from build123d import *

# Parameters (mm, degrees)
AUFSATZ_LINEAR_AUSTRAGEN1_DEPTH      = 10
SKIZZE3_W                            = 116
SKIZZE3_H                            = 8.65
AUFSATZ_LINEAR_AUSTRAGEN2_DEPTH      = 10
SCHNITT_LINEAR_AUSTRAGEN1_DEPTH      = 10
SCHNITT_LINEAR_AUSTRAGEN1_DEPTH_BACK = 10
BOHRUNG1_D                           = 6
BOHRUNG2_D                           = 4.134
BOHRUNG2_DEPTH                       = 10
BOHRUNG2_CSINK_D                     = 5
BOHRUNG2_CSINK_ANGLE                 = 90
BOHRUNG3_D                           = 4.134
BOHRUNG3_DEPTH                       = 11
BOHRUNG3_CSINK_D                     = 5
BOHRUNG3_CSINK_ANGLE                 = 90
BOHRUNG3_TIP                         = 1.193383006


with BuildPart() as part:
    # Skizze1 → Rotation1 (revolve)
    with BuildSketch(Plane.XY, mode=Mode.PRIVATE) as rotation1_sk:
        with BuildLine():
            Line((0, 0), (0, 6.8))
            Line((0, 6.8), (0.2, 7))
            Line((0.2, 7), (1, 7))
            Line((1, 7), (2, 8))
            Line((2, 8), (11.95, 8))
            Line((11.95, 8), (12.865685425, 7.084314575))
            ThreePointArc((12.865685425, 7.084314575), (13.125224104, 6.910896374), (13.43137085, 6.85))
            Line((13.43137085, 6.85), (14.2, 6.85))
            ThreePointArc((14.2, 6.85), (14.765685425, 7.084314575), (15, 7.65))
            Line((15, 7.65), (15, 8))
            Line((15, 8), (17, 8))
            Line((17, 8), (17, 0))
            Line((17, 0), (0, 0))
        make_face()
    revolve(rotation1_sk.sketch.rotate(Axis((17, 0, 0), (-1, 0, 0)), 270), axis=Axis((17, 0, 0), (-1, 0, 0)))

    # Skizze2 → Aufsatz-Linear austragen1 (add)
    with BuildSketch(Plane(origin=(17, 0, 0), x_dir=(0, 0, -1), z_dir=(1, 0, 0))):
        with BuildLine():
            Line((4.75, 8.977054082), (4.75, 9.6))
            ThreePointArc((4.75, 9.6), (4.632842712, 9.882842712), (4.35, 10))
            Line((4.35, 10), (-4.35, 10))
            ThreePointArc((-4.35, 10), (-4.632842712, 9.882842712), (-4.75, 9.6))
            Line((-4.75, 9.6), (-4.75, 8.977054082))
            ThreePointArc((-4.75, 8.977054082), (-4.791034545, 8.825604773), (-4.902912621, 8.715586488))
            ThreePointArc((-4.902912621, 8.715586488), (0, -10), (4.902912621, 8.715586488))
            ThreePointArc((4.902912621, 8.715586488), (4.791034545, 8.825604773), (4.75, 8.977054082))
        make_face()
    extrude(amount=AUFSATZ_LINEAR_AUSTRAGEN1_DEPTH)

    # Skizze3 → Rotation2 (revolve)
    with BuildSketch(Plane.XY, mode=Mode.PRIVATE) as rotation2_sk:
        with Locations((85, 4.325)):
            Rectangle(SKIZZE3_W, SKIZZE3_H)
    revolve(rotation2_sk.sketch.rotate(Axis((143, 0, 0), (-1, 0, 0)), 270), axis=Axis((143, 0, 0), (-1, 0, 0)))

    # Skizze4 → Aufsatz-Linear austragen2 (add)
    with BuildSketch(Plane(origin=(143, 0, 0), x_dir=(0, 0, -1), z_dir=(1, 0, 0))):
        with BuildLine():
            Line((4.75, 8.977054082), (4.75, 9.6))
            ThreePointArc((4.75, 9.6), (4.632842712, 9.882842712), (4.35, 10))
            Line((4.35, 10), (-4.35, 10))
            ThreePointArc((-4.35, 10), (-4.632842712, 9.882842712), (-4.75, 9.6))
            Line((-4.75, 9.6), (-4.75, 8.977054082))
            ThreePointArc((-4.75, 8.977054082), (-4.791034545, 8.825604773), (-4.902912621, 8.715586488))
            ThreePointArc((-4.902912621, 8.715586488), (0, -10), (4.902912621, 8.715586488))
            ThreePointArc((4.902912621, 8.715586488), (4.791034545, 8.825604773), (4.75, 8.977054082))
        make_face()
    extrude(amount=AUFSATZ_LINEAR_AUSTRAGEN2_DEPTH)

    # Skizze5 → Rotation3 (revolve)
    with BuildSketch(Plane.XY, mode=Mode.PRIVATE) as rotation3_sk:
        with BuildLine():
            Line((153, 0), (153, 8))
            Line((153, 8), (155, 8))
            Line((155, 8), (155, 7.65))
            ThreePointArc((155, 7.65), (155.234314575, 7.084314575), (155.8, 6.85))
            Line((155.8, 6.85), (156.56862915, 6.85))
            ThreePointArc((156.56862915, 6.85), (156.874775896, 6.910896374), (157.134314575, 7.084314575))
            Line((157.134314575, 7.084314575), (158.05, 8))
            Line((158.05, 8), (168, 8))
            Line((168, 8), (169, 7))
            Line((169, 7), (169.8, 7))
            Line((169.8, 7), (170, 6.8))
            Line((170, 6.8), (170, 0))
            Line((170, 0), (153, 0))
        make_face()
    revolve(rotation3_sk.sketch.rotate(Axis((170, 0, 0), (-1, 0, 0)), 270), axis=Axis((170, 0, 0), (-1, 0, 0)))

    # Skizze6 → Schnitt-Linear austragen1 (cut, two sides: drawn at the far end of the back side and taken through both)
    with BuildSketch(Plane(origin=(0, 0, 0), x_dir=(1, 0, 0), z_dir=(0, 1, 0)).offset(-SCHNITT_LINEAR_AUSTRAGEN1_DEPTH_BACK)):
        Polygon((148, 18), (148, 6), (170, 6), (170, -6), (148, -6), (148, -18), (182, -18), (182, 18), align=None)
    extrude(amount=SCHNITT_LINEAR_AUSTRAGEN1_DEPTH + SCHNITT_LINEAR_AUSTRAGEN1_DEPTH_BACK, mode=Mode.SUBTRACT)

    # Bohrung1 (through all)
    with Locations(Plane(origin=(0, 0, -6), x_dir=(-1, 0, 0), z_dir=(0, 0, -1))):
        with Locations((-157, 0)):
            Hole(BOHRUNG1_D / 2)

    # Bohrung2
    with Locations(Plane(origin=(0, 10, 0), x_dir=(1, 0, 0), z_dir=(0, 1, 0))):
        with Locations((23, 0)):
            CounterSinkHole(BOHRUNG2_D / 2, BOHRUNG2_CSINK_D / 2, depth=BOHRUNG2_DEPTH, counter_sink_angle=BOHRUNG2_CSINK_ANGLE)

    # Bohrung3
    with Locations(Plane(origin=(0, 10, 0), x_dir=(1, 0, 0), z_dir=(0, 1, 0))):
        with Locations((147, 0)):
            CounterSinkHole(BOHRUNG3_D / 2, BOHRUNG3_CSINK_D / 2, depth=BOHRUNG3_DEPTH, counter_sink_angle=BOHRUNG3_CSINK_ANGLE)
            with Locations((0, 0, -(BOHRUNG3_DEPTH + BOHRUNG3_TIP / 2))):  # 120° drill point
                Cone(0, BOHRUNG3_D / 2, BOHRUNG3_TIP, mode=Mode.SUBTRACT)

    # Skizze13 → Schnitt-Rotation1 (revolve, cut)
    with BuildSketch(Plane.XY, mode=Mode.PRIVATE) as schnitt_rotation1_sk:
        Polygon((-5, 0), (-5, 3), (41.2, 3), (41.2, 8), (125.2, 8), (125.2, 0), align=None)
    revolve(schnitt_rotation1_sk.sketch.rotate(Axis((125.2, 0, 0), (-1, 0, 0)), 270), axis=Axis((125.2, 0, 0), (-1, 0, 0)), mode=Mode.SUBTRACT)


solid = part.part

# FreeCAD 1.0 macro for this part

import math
import FreeCAD as App
import Part
import Sketcher
from FreeCAD import Vector
Q = App.Units.Quantity

doc = App.newDocument("Part")
body = doc.addObject("PartDesign::Body", "Body")

sketch1 = body.newObject("Sketcher::SketchObject", "Sketch")
sketch1.AttachmentSupport = (doc.getObject("XY_Plane"), [""])
sketch1.MapMode = "FlatFace"
sketch1.addGeometry([
    Part.LineSegment(Vector(0, 6.8, 0), Vector(0, 0, 0)),
    Part.LineSegment(Vector(0, 0, 0), Vector(17, 0, 0)),
    Part.LineSegment(Vector(17, 0, 0), Vector(17, 8, 0)),
    Part.LineSegment(Vector(17, 8, 0), Vector(15, 8, 0)),
    Part.LineSegment(Vector(15, 8, 0), Vector(15, 7.65, 0)),
    Part.ArcOfCircle(Part.Circle(Vector(14.2, 7.65, 0), Vector(0, 0, 1), 0.8), math.radians(-90), math.radians(0)),
    Part.LineSegment(Vector(14.2, 6.85, 0), Vector(13.43, 6.85, 0)),
    Part.ArcOfCircle(Part.Circle(Vector(13.43, 7.65, 0), Vector(0, 0, 1), 0.8), math.radians(-135), math.radians(-90)),
    Part.LineSegment(Vector(12.87, 7.08, 0), Vector(11.95, 8, 0)),
    Part.LineSegment(Vector(11.95, 8, 0), Vector(2, 8, 0)),
    Part.LineSegment(Vector(2, 8, 0), Vector(1, 7, 0)),
    Part.LineSegment(Vector(1, 7, 0), Vector(0.2, 7, 0)),
    Part.LineSegment(Vector(0.2, 7, 0), Vector(0, 6.8, 0)),
], False)
sketch1.addConstraint([
    Sketcher.Constraint("Coincident", 0, 2, 1, 1),
    Sketcher.Constraint("Coincident", 1, 2, 2, 1),
    Sketcher.Constraint("Coincident", 2, 2, 3, 1),
    Sketcher.Constraint("Coincident", 3, 2, 4, 1),
    Sketcher.Constraint("Tangent", 4, 2, 5, 2),
    Sketcher.Constraint("Tangent", 5, 1, 6, 1),
    Sketcher.Constraint("Tangent", 6, 2, 7, 2),
    Sketcher.Constraint("Tangent", 7, 1, 8, 1),
    Sketcher.Constraint("Coincident", 8, 2, 9, 1),
    Sketcher.Constraint("Coincident", 9, 2, 10, 1),
    Sketcher.Constraint("Coincident", 10, 2, 11, 1),
    Sketcher.Constraint("Coincident", 11, 2, 12, 1),
    Sketcher.Constraint("Coincident", 12, 2, 0, 1),
    Sketcher.Constraint("Vertical", 0),
    Sketcher.Constraint("Horizontal", 1),
    Sketcher.Constraint("Vertical", 2),
    Sketcher.Constraint("Horizontal", 3),
    Sketcher.Constraint("Vertical", 4),
    Sketcher.Constraint("Horizontal", 6),
    Sketcher.Constraint("Horizontal", 9),
    Sketcher.Constraint("Horizontal", 11),
    Sketcher.Constraint("Coincident", 0, 2, -1, 1),
    Sketcher.Constraint("Equal", 5, 7),
    Sketcher.Constraint("Perpendicular", 8, 10),
    Sketcher.Constraint("Parallel", 10, 12),
    Sketcher.Constraint("Horizontal", 3, 2, 8, 2),
    Sketcher.Constraint("Radius", 5, Q("0.8 mm")),
    Sketcher.Constraint("DistanceX", 1, 1, 1, 2, Q("17 mm")),
    Sketcher.Constraint("DistanceX", 3, 2, 3, 1, Q("2 mm")),
    Sketcher.Constraint("DistanceY", 2, 1, 2, 2, Q("8 mm")),
    Sketcher.Constraint("Angle", 8, Q("135 deg")),
    Sketcher.Constraint("DistanceX", 11, 2, 11, 1, Q("0.8 mm")),
    Sketcher.Constraint("DistanceY", 0, 2, 0, 1, Q("6.8 mm")),
    Sketcher.Constraint("DistanceX", -1, 1, 10, 2, Q("1 mm")),
    Sketcher.Constraint("DistanceX", 9, 2, 9, 1, Q("9.95 mm")),
    Sketcher.Constraint("DistanceY", 4, 2, 4, 1, Q("0.35 mm")),
])
revolution = body.newObject("PartDesign::Revolution", "Revolution")
revolution.Profile = sketch1
revolution.ReferenceAxis = (sketch1, ["H_Axis"])
revolution.Angle = 360

sketch2 = body.newObject("Sketcher::SketchObject", "Sketch001")
sketch2.AttachmentSupport = (doc.getObject("YZ_Plane"), [""])
sketch2.MapMode = "FlatFace"
sketch2.AttachmentOffset = App.Placement(Vector(0, 0, 17), App.Rotation())
sketch2.addGeometry([
    Part.LineSegment(Vector(8.98, -4.75, 0), Vector(9.6, -4.75, 0)),
    Part.ArcOfCircle(Part.Circle(Vector(9.6, -4.35, 0), Vector(0, 0, 1), 0.4), math.radians(-90), math.radians(0)),
    Part.LineSegment(Vector(10, -4.35, 0), Vector(10, 4.35, 0)),
    Part.ArcOfCircle(Part.Circle(Vector(9.6, 4.35, 0), Vector(0, 0, 1), 0.4), math.radians(0), math.radians(90)),
    Part.LineSegment(Vector(9.6, 4.75, 0), Vector(8.98, 4.75, 0)),
    Part.ArcOfCircle(Part.Circle(Vector(8.98, 5.05, 0), Vector(0, 0, 1), 0.3), math.radians(-151), math.radians(-90)),
    Part.ArcOfCircle(Part.Circle(Vector(0, 0, 0), Vector(0, 0, 1), 10), math.radians(29), math.radians(331)),
    Part.ArcOfCircle(Part.Circle(Vector(8.98, -5.05, 0), Vector(0, 0, 1), 0.3), math.radians(90), math.radians(151)),
], False)
sketch2.addConstraint([
    Sketcher.Constraint("Tangent", 0, 2, 1, 1),
    Sketcher.Constraint("Tangent", 1, 2, 2, 1),
    Sketcher.Constraint("Tangent", 2, 2, 3, 1),
    Sketcher.Constraint("Tangent", 3, 2, 4, 1),
    Sketcher.Constraint("Tangent", 4, 2, 5, 2),
    Sketcher.Constraint("Tangent", 5, 1, 6, 1),
    Sketcher.Constraint("Tangent", 6, 2, 7, 2),
    Sketcher.Constraint("Tangent", 7, 1, 0, 1),
    Sketcher.Constraint("Horizontal", 0),
    Sketcher.Constraint("Vertical", 2),
    Sketcher.Constraint("Horizontal", 4),
    Sketcher.Constraint("Coincident", 6, 3, -1, 1),
    Sketcher.Constraint("Equal", 1, 3),
    Sketcher.Constraint("Equal", 5, 7),
    Sketcher.Constraint("Vertical", 5, 3, 7, 3),
    Sketcher.Constraint("Radius", 6, Q("10 mm")),
    Sketcher.Constraint("Radius", 1, Q("0.4 mm")),
    Sketcher.Constraint("Radius", 5, Q("0.3 mm")),
    Sketcher.Constraint("DistanceY", 2, 1, 2, 2, Q("8.7 mm")),
    Sketcher.Constraint("DistanceX", -1, 1, 1, 2, Q("10 mm")),
])
pad1 = body.newObject("PartDesign::Pad", "Pad")
pad1.Profile = sketch2
pad1.Length = 10

sketch3 = body.newObject("Sketcher::SketchObject", "Sketch002")
sketch3.AttachmentSupport = (doc.getObject("XY_Plane"), [""])
sketch3.MapMode = "FlatFace"
sketch3.addGeometry([
    Part.LineSegment(Vector(27, 9, 0), Vector(27, 0, 0)),
    Part.LineSegment(Vector(27, 0, 0), Vector(143, 0, 0)),
    Part.LineSegment(Vector(143, 0, 0), Vector(143, 9, 0)),
    Part.LineSegment(Vector(143, 9, 0), Vector(27, 9, 0)),
], False)
sketch3.addConstraint([
    Sketcher.Constraint("Coincident", 0, 2, 1, 1),
    Sketcher.Constraint("Coincident", 1, 2, 2, 1),
    Sketcher.Constraint("Coincident", 2, 2, 3, 1),
    Sketcher.Constraint("Coincident", 3, 2, 0, 1),
    Sketcher.Constraint("Vertical", 0),
    Sketcher.Constraint("Horizontal", 1),
    Sketcher.Constraint("Vertical", 2),
    Sketcher.Constraint("Horizontal", 3),
    Sketcher.Constraint("PointOnObject", 0, 2, -1),
    Sketcher.Constraint("DistanceX", 1, 1, 1, 2, Q("116 mm")),
    Sketcher.Constraint("DistanceX", -1, 1, 0, 2, Q("27 mm")),
    Sketcher.Constraint("DistanceY", 0, 2, 0, 1, Q("8.65 mm")),
])
revolution2 = body.newObject("PartDesign::Revolution", "Revolution001")
revolution2.Profile = sketch3
revolution2.ReferenceAxis = (sketch3, ["H_Axis"])
revolution2.Angle = 360

sketch4 = body.newObject("Sketcher::SketchObject", "Sketch003")
sketch4.AttachmentSupport = (doc.getObject("YZ_Plane"), [""])
sketch4.MapMode = "FlatFace"
sketch4.AttachmentOffset = App.Placement(Vector(0, 0, 143), App.Rotation())
sketch4.addGeometry([
    Part.LineSegment(Vector(8.98, -4.75, 0), Vector(9.6, -4.75, 0)),
    Part.ArcOfCircle(Part.Circle(Vector(9.6, -4.35, 0), Vector(0, 0, 1), 0.4), math.radians(-90), math.radians(0)),
    Part.LineSegment(Vector(10, -4.35, 0), Vector(10, 4.35, 0)),
    Part.ArcOfCircle(Part.Circle(Vector(9.6, 4.35, 0), Vector(0, 0, 1), 0.4), math.radians(0), math.radians(90)),
    Part.LineSegment(Vector(9.6, 4.75, 0), Vector(8.98, 4.75, 0)),
    Part.ArcOfCircle(Part.Circle(Vector(8.98, 5.05, 0), Vector(0, 0, 1), 0.3), math.radians(-151), math.radians(-90)),
    Part.ArcOfCircle(Part.Circle(Vector(0, 0, 0), Vector(0, 0, 1), 10), math.radians(29), math.radians(331)),
    Part.ArcOfCircle(Part.Circle(Vector(8.98, -5.05, 0), Vector(0, 0, 1), 0.3), math.radians(90), math.radians(151)),
], False)
sketch4.addConstraint([
    Sketcher.Constraint("Tangent", 0, 2, 1, 1),
    Sketcher.Constraint("Tangent", 1, 2, 2, 1),
    Sketcher.Constraint("Tangent", 2, 2, 3, 1),
    Sketcher.Constraint("Tangent", 3, 2, 4, 1),
    Sketcher.Constraint("Tangent", 4, 2, 5, 2),
    Sketcher.Constraint("Tangent", 5, 1, 6, 1),
    Sketcher.Constraint("Tangent", 6, 2, 7, 2),
    Sketcher.Constraint("Tangent", 7, 1, 0, 1),
    Sketcher.Constraint("Horizontal", 0),
    Sketcher.Constraint("Vertical", 2),
    Sketcher.Constraint("Horizontal", 4),
    Sketcher.Constraint("Coincident", 6, 3, -1, 1),
    Sketcher.Constraint("Equal", 1, 3),
    Sketcher.Constraint("Equal", 5, 7),
    Sketcher.Constraint("Vertical", 5, 3, 7, 3),
    Sketcher.Constraint("Radius", 6, Q("10 mm")),
    Sketcher.Constraint("Radius", 1, Q("0.4 mm")),
    Sketcher.Constraint("Radius", 5, Q("0.3 mm")),
    Sketcher.Constraint("DistanceY", 2, 1, 2, 2, Q("8.7 mm")),
    Sketcher.Constraint("DistanceX", -1, 1, 1, 2, Q("10 mm")),
])
pad2 = body.newObject("PartDesign::Pad", "Pad001")
pad2.Profile = sketch4
pad2.Length = 10

sketch5 = body.newObject("Sketcher::SketchObject", "Sketch004")
sketch5.AttachmentSupport = (doc.getObject("XY_Plane"), [""])
sketch5.MapMode = "FlatFace"
sketch5.addGeometry([
    Part.LineSegment(Vector(153, 8, 0), Vector(153, 0, 0)),
    Part.LineSegment(Vector(153, 0, 0), Vector(170, 0, 0)),
    Part.LineSegment(Vector(170, 0, 0), Vector(170, 6.8, 0)),
    Part.LineSegment(Vector(170, 6.8, 0), Vector(169.8, 7, 0)),
    Part.LineSegment(Vector(169.8, 7, 0), Vector(169, 7, 0)),
    Part.LineSegment(Vector(169, 7, 0), Vector(168, 8, 0)),
    Part.LineSegment(Vector(168, 8, 0), Vector(158.05, 8, 0)),
    Part.LineSegment(Vector(158.05, 8, 0), Vector(157.13, 7.08, 0)),
    Part.ArcOfCircle(Part.Circle(Vector(156.57, 7.65, 0), Vector(0, 0, 1), 0.8), math.radians(-90), math.radians(-45)),
    Part.LineSegment(Vector(156.57, 6.85, 0), Vector(155.8, 6.85, 0)),
    Part.ArcOfCircle(Part.Circle(Vector(155.8, 7.65, 0), Vector(0, 0, 1), 0.8), math.radians(180), math.radians(270)),
    Part.LineSegment(Vector(155, 7.65, 0), Vector(155, 8, 0)),
    Part.LineSegment(Vector(155, 8, 0), Vector(153, 8, 0)),
], False)
sketch5.addConstraint([
    Sketcher.Constraint("Coincident", 0, 2, 1, 1),
    Sketcher.Constraint("Coincident", 1, 2, 2, 1),
    Sketcher.Constraint("Coincident", 2, 2, 3, 1),
    Sketcher.Constraint("Coincident", 3, 2, 4, 1),
    Sketcher.Constraint("Coincident", 4, 2, 5, 1),
    Sketcher.Constraint("Coincident", 5, 2, 6, 1),
    Sketcher.Constraint("Coincident", 6, 2, 7, 1),
    Sketcher.Constraint("Tangent", 7, 2, 8, 2),
    Sketcher.Constraint("Tangent", 8, 1, 9, 1),
    Sketcher.Constraint("Tangent", 9, 2, 10, 2),
    Sketcher.Constraint("Tangent", 10, 1, 11, 1),
    Sketcher.Constraint("Coincident", 11, 2, 12, 1),
    Sketcher.Constraint("Coincident", 12, 2, 0, 1),
    Sketcher.Constraint("Vertical", 0),
    Sketcher.Constraint("Horizontal", 1),
    Sketcher.Constraint("Vertical", 2),
    Sketcher.Constraint("Horizontal", 4),
    Sketcher.Constraint("Horizontal", 6),
    Sketcher.Constraint("Horizontal", 9),
    Sketcher.Constraint("Vertical", 11),
    Sketcher.Constraint("Horizontal", 12),
    Sketcher.Constraint("Equal", 8, 10),
    Sketcher.Constraint("PointOnObject", 0, 2, -1),
    Sketcher.Constraint("Parallel", 3, 5),
    Sketcher.Constraint("Perpendicular", 5, 7),
    Sketcher.Constraint("Horizontal", 6, 2, 11, 2),
    Sketcher.Constraint("Radius", 8, Q("0.8 mm")),
    Sketcher.Constraint("DistanceX", 1, 1, 1, 2, Q("17 mm")),
    Sketcher.Constraint("DistanceX", 12, 2, 12, 1, Q("2 mm")),
    Sketcher.Constraint("DistanceY", 0, 2, 0, 1, Q("8 mm")),
    Sketcher.Constraint("Angle", 3, Q("135 deg")),
    Sketcher.Constraint("DistanceX", 4, 2, 4, 1, Q("0.8 mm")),
    Sketcher.Constraint("DistanceY", 2, 1, 2, 2, Q("6.8 mm")),
    Sketcher.Constraint("DistanceX", -1, 1, 0, 2, Q("153 mm")),
    Sketcher.Constraint("DistanceY", -1, 1, 3, 2, Q("7 mm")),
    Sketcher.Constraint("DistanceX", 6, 2, 6, 1, Q("9.95 mm")),
    Sketcher.Constraint("DistanceY", 11, 1, 11, 2, Q("0.35 mm")),
])
revolution3 = body.newObject("PartDesign::Revolution", "Revolution002")
revolution3.Profile = sketch5
revolution3.ReferenceAxis = (sketch5, ["H_Axis"])
revolution3.Angle = 360

sketch6 = body.newObject("Sketcher::SketchObject", "Sketch005")
sketch6.AttachmentSupport = (doc.getObject("XZ_Plane"), [""])
sketch6.MapMode = "FlatFace"
sketch6.addGeometry([
    Part.LineSegment(Vector(148, -18, 0), Vector(148, -6, 0)),
    Part.LineSegment(Vector(148, -6, 0), Vector(170, -6, 0)),
    Part.LineSegment(Vector(170, -6, 0), Vector(170, 6, 0)),
    Part.LineSegment(Vector(170, 6, 0), Vector(148, 6, 0)),
    Part.LineSegment(Vector(148, 6, 0), Vector(148, 18, 0)),
    Part.LineSegment(Vector(148, 18, 0), Vector(182, 18, 0)),
    Part.LineSegment(Vector(182, 18, 0), Vector(182, -18, 0)),
    Part.LineSegment(Vector(182, -18, 0), Vector(148, -18, 0)),
], False)
sketch6.addConstraint([
    Sketcher.Constraint("Coincident", 0, 2, 1, 1),
    Sketcher.Constraint("Coincident", 1, 2, 2, 1),
    Sketcher.Constraint("Coincident", 2, 2, 3, 1),
    Sketcher.Constraint("Coincident", 3, 2, 4, 1),
    Sketcher.Constraint("Coincident", 4, 2, 5, 1),
    Sketcher.Constraint("Coincident", 5, 2, 6, 1),
    Sketcher.Constraint("Coincident", 6, 2, 7, 1),
    Sketcher.Constraint("Coincident", 7, 2, 0, 1),
    Sketcher.Constraint("Vertical", 0),
    Sketcher.Constraint("Horizontal", 1),
    Sketcher.Constraint("Vertical", 2),
    Sketcher.Constraint("Horizontal", 3),
    Sketcher.Constraint("Vertical", 4),
    Sketcher.Constraint("Horizontal", 5),
    Sketcher.Constraint("Vertical", 6),
    Sketcher.Constraint("Horizontal", 7),
    Sketcher.Constraint("Symmetric", 0, 2, 3, 2, -1),
    Sketcher.Constraint("Equal", 0, 2),
    Sketcher.Constraint("Equal", 2, 4),
    Sketcher.Constraint("DistanceX", 1, 1, 1, 2, Q("22 mm")),
    Sketcher.Constraint("DistanceX", 5, 1, 5, 2, Q("34 mm")),
    Sketcher.Constraint("DistanceY", 0, 1, 0, 2, Q("12 mm")),
    Sketcher.Constraint("DistanceX", -1, 1, 0, 2, Q("148 mm")),
])
pocket1 = body.newObject("PartDesign::Pocket", "Pocket")
pocket1.Profile = sketch6
pocket1.Type = "ThroughAll"
pocket1.Midplane = True

sketch7 = body.newObject("Sketcher::SketchObject", "Sketch006")
sketch7.AttachmentSupport = (doc.getObject("XY_Plane"), [""])
sketch7.MapMode = "FlatFace"
sketch7.AttachmentOffset = App.Placement(Vector(0, 0, -6), App.Rotation())
sketch7.addGeometry(Part.Circle(Vector(157, 0, 0), Vector(0, 0, 1), 3), False)
sketch7.addConstraint([
    Sketcher.Constraint("PointOnObject", 0, 3, -1),
    Sketcher.Constraint("Diameter", 0, Q("6 mm")),
    Sketcher.Constraint("DistanceX", -1, 1, 0, 3, Q("157 mm")),
])
doc.recompute()
hole = body.newObject("PartDesign::Hole", "Hole")
hole.Profile = sketch7
hole.ThreadType = "None"
hole.Diameter = 6
hole.DepthType = "ThroughAll"
hole.Reversed = True

sketch8 = body.newObject("Sketcher::SketchObject", "Sketch007")
sketch8.AttachmentSupport = (doc.getObject("XZ_Plane"), [""])
sketch8.MapMode = "FlatFace"
sketch8.AttachmentOffset = App.Placement(Vector(0, 0, -10), App.Rotation())
sketch8.addGeometry(Part.Circle(Vector(23, 0, 0), Vector(0, 0, 1), 2.1), False)
sketch8.addConstraint([
    Sketcher.Constraint("PointOnObject", 0, 3, -1),
    Sketcher.Constraint("Diameter", 0, Q("4.134 mm")),
    Sketcher.Constraint("DistanceX", -1, 1, 0, 3, Q("23 mm")),
])
doc.recompute()
hole2 = body.newObject("PartDesign::Hole", "Hole001")
hole2.Profile = sketch8
hole2.ThreadType = "None"
hole2.Diameter = 4.134
hole2.DepthType = "Dimension"
hole2.Depth = 10
hole2.DrillPoint = "Flat"
hole2.HoleCutType = "Countersink"
hole2.HoleCutDiameter = 5
hole2.HoleCutCountersinkAngle = 90
hole2.Reversed = True

sketch9 = body.newObject("Sketcher::SketchObject", "Sketch008")
sketch9.AttachmentSupport = (doc.getObject("XZ_Plane"), [""])
sketch9.MapMode = "FlatFace"
sketch9.AttachmentOffset = App.Placement(Vector(0, 0, -10), App.Rotation())
sketch9.addGeometry(Part.Circle(Vector(147, 0, 0), Vector(0, 0, 1), 2.1), False)
sketch9.addConstraint([
    Sketcher.Constraint("PointOnObject", 0, 3, -1),
    Sketcher.Constraint("Diameter", 0, Q("4.134 mm")),
    Sketcher.Constraint("DistanceX", -1, 1, 0, 3, Q("147 mm")),
])
doc.recompute()
hole3 = body.newObject("PartDesign::Hole", "Hole002")
hole3.Profile = sketch9
hole3.ThreadType = "None"
hole3.Diameter = 4.134
hole3.DepthType = "Dimension"
hole3.Depth = 11
hole3.DrillPoint = "Angled"
hole3.DrillPointAngle = 120
hole3.HoleCutType = "Countersink"
hole3.HoleCutDiameter = 5
hole3.HoleCutCountersinkAngle = 90
hole3.Reversed = True

sketch10 = body.newObject("Sketcher::SketchObject", "Sketch009")
sketch10.AttachmentSupport = (doc.getObject("XY_Plane"), [""])
sketch10.MapMode = "FlatFace"
sketch10.addGeometry([
    Part.LineSegment(Vector(-5, 3, 0), Vector(-5, 0, 0)),
    Part.LineSegment(Vector(-5, 0, 0), Vector(125.2, 0, 0)),
    Part.LineSegment(Vector(125.2, 0, 0), Vector(125.2, 8, 0)),
    Part.LineSegment(Vector(125.2, 8, 0), Vector(41.2, 8, 0)),
    Part.LineSegment(Vector(41.2, 8, 0), Vector(41.2, 3, 0)),
    Part.LineSegment(Vector(41.2, 3, 0), Vector(-5, 3, 0)),
], False)
sketch10.addConstraint([
    Sketcher.Constraint("Coincident", 0, 2, 1, 1),
    Sketcher.Constraint("Coincident", 1, 2, 2, 1),
    Sketcher.Constraint("Coincident", 2, 2, 3, 1),
    Sketcher.Constraint("Coincident", 3, 2, 4, 1),
    Sketcher.Constraint("Coincident", 4, 2, 5, 1),
    Sketcher.Constraint("Coincident", 5, 2, 0, 1),
    Sketcher.Constraint("Vertical", 0),
    Sketcher.Constraint("Horizontal", 1),
    Sketcher.Constraint("Vertical", 2),
    Sketcher.Constraint("Horizontal", 3),
    Sketcher.Constraint("Vertical", 4),
    Sketcher.Constraint("Horizontal", 5),
    Sketcher.Constraint("PointOnObject", 0, 2, -1),
    Sketcher.Constraint("DistanceX", 3, 2, 3, 1, Q("84 mm")),
    Sketcher.Constraint("DistanceY", 0, 2, 0, 1, Q("3 mm")),
    Sketcher.Constraint("DistanceY", 2, 1, 2, 2, Q("8 mm")),
    Sketcher.Constraint("DistanceX", 1, 1, 1, 2, Q("130.2 mm")),
    Sketcher.Constraint("DistanceX", 0, 2, -1, 1, Q("5 mm")),
])
groove = body.newObject("PartDesign::Groove", "Groove")
groove.Profile = sketch10
groove.ReferenceAxis = (sketch10, ["H_Axis"])
groove.Angle = 360

doc.recompute()
